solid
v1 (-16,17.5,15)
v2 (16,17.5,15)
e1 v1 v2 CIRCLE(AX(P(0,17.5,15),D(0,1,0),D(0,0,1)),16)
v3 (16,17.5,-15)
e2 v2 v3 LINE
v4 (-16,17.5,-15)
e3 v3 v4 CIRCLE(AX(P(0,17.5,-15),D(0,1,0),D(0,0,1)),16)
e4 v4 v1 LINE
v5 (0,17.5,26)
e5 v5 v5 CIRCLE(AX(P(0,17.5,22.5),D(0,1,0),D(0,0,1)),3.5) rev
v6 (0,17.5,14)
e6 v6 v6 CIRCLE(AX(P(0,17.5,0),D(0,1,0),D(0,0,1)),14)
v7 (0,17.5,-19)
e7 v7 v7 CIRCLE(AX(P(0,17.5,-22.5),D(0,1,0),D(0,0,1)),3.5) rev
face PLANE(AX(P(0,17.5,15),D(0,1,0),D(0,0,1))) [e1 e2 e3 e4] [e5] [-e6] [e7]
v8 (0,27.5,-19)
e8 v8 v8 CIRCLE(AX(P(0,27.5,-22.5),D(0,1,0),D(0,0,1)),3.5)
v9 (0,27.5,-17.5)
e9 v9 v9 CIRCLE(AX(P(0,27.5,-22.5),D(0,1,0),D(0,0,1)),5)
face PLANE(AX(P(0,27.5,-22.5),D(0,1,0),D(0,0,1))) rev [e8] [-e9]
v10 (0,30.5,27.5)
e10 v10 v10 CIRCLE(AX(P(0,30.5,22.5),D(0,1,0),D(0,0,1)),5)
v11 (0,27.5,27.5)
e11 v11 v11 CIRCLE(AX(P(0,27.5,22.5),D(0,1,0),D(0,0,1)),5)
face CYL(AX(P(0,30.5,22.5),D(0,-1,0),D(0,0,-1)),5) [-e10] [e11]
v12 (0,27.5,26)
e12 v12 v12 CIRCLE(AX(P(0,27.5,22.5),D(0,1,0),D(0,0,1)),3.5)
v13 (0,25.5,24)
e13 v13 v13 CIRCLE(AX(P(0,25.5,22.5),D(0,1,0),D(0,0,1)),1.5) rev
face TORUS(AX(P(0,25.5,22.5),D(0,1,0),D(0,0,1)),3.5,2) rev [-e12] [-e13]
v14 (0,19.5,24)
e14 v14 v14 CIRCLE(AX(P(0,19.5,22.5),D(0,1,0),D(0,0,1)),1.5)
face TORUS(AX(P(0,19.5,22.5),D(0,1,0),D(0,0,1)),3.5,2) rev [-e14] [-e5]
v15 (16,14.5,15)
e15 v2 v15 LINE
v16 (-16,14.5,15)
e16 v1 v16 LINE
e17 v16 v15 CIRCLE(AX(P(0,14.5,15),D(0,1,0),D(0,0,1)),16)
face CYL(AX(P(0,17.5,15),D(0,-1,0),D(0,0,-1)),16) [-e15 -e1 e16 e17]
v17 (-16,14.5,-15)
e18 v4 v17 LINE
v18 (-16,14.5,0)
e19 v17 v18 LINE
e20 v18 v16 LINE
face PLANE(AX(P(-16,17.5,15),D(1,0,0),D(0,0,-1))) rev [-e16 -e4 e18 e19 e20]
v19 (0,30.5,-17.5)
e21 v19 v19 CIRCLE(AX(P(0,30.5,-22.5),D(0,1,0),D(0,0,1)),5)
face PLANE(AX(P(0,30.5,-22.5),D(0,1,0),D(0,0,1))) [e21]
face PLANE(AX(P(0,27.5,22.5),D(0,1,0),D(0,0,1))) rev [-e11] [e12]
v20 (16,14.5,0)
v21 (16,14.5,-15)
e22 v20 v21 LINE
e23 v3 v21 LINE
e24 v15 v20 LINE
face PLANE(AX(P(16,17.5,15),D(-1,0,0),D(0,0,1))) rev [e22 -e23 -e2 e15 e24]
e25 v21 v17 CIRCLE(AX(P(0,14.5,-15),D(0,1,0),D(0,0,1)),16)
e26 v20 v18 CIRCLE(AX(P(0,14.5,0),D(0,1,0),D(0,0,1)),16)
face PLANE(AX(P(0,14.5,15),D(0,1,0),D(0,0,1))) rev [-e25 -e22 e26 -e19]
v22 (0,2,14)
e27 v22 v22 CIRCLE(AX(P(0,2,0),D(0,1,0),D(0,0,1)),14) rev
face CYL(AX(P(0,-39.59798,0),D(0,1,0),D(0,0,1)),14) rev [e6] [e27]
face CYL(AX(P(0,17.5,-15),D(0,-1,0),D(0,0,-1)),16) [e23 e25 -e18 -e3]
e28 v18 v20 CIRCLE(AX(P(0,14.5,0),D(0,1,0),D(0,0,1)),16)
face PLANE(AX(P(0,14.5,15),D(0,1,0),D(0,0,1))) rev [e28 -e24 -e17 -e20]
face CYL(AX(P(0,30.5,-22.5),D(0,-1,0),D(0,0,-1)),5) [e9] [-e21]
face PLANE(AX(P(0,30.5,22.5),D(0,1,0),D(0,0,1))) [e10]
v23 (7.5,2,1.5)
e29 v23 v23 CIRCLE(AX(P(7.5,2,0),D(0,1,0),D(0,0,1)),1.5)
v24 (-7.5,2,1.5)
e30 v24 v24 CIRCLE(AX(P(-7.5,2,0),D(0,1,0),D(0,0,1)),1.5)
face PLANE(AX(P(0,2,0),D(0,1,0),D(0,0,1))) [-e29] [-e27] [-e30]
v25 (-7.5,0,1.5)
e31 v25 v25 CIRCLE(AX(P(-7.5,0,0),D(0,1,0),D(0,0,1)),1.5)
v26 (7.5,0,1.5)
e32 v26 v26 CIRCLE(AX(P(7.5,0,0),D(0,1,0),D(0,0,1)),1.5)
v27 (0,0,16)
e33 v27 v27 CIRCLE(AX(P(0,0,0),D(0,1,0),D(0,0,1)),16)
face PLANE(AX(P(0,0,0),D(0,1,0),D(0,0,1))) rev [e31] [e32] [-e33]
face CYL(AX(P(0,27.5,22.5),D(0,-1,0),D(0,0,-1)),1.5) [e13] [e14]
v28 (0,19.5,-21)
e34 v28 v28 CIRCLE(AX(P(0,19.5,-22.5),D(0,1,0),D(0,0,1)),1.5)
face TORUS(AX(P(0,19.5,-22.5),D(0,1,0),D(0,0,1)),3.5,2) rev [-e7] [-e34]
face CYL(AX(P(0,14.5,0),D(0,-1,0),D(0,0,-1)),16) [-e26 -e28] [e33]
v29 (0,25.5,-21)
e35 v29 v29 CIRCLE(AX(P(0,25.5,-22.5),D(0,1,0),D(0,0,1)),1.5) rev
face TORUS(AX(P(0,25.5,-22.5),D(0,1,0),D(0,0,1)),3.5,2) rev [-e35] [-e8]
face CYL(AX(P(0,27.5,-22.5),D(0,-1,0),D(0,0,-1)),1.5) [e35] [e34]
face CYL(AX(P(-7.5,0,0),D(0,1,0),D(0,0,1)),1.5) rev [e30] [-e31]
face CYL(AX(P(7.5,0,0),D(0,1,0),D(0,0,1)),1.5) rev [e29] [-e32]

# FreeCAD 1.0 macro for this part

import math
import FreeCAD as App
import Part
import Sketcher


def edges_at(feature, points):
    """Names of the edges that pass closest to the given points."""
    edges = feature.Shape.Edges
    near = lambda p: min(range(len(edges)), key=lambda i: edges[i].distToShape(Part.Vertex(*p))[0])
    return sorted({f"Edge{near(p) + 1}" for p in points})

doc = App.newDocument("Part")
body = doc.addObject("PartDesign::Body", "Body")

# Sketch on XZ plane
sketch1 = body.newObject("Sketcher::SketchObject", "Sketch")
sketch1.AttachmentSupport = (doc.getObject("XZ_Plane"), [""])
sketch1.MapMode = "FlatFace"
sketch1.addGeometry(Part.Circle(App.Vector(0, 0, 0), App.Vector(0, 0, 1), 16), False)
sketch1.addConstraint(Sketcher.Constraint("Coincident", 0, 3, -1, 1))
sketch1.addConstraint(Sketcher.Constraint("Diameter", 0, 32.0))
pad1 = body.newObject("PartDesign::Pad", "Pad")
pad1.Profile = sketch1
pad1.Length = 14.5
pad1.Reversed = True

# Sketch on XZ plane
sketch2 = body.newObject("Sketcher::SketchObject", "Sketch001")
sketch2.AttachmentSupport = (doc.getObject("XZ_Plane"), [""])
sketch2.MapMode = "FlatFace"
sketch2.AttachmentOffset = App.Placement(App.Vector(0, 0, -14.5), App.Rotation())
sketch2.addGeometry(Part.LineSegment(App.Vector(-16, -15, 0), App.Vector(-16, 15, 0)), False)
sketch2.addGeometry(Part.ArcOfCircle(Part.Circle(App.Vector(0, 15, 0), App.Vector(0, 0, 1), 16), math.radians(0), math.radians(180)), False)
sketch2.addGeometry(Part.LineSegment(App.Vector(16, 15, 0), App.Vector(16, -15, 0)), False)
sketch2.addGeometry(Part.ArcOfCircle(Part.Circle(App.Vector(0, -15, 0), App.Vector(0, 0, 1), 16), math.radians(180), math.radians(360)), False)
sketch2.addConstraint(Sketcher.Constraint("Tangent", 0, 2, 1, 2))
sketch2.addConstraint(Sketcher.Constraint("Tangent", 1, 1, 2, 1))
sketch2.addConstraint(Sketcher.Constraint("Tangent", 2, 2, 3, 2))
sketch2.addConstraint(Sketcher.Constraint("Tangent", 3, 1, 0, 1))
sketch2.addConstraint(Sketcher.Constraint("Vertical", 0))
sketch2.addConstraint(Sketcher.Constraint("Vertical", 2))
sketch2.addConstraint(Sketcher.Constraint("Symmetric", 1, 3, 3, 3, -1, 1))
sketch2.addConstraint(Sketcher.Constraint("Radius", 1, 16.0))
sketch2.addConstraint(Sketcher.Constraint("DistanceY", 0, 1, 0, 2, 30.0))
pad2 = body.newObject("PartDesign::Pad", "Pad001")
pad2.Profile = sketch2
pad2.Length = 3
pad2.Reversed = True

# Sketch on XZ plane
sketch3 = body.newObject("Sketcher::SketchObject", "Sketch002")
sketch3.AttachmentSupport = (doc.getObject("XZ_Plane"), [""])
sketch3.MapMode = "FlatFace"
sketch3.AttachmentOffset = App.Placement(App.Vector(0, 0, -17.5), App.Rotation())
sketch3.addGeometry(Part.Circle(App.Vector(0, -22.5, 0), App.Vector(0, 0, 1), 1.5), False)
sketch3.addGeometry(Part.Circle(App.Vector(0, 22.5, 0), App.Vector(0, 0, 1), 1.5), False)
sketch3.addConstraint(Sketcher.Constraint("Equal", 0, 1))
sketch3.addConstraint(Sketcher.Constraint("Symmetric", 0, 3, 1, 3, -1, 1))
sketch3.addConstraint(Sketcher.Constraint("PointOnObject", 0, 3, -2))
sketch3.addConstraint(Sketcher.Constraint("Diameter", 0, 3.0))
sketch3.addConstraint(Sketcher.Constraint("DistanceY", 0, 3, 1, 3, 45.0))
pad3 = body.newObject("PartDesign::Pad", "Pad002")
pad3.Profile = sketch3
pad3.Length = 10
pad3.Reversed = True

# Sketch on XZ plane
sketch4 = body.newObject("Sketcher::SketchObject", "Sketch003")
sketch4.AttachmentSupport = (doc.getObject("XZ_Plane"), [""])
sketch4.MapMode = "FlatFace"
sketch4.AttachmentOffset = App.Placement(App.Vector(0, 0, -17.5), App.Rotation())
sketch4.addGeometry(Part.Circle(App.Vector(0, 0, 0), App.Vector(0, 0, 1), 14), False)
sketch4.addConstraint(Sketcher.Constraint("Coincident", 0, 3, -1, 1))
sketch4.addConstraint(Sketcher.Constraint("Diameter", 0, 28.0))
pocket1 = body.newObject("PartDesign::Pocket", "Pocket")
pocket1.Profile = sketch4
pocket1.Length = 15.5
pocket1.Reversed = True

# Sketch on XZ plane
sketch5 = body.newObject("Sketcher::SketchObject", "Sketch004")
sketch5.AttachmentSupport = (doc.getObject("XZ_Plane"), [""])
sketch5.MapMode = "FlatFace"
sketch5.AttachmentOffset = App.Placement(App.Vector(0, 0, -2), App.Rotation())
sketch5.addGeometry(Part.Circle(App.Vector(7.5, 0, 0), App.Vector(0, 0, 1), 1.5), False)
sketch5.addGeometry(Part.Circle(App.Vector(-7.5, 0, 0), App.Vector(0, 0, 1), 1.5), False)
sketch5.addConstraint(Sketcher.Constraint("Equal", 0, 1))
sketch5.addConstraint(Sketcher.Constraint("Symmetric", 0, 3, 1, 3, -1, 1))
sketch5.addConstraint(Sketcher.Constraint("PointOnObject", 0, 3, -1))
sketch5.addConstraint(Sketcher.Constraint("Diameter", 0, 3.0))
sketch5.addConstraint(Sketcher.Constraint("DistanceX", 1, 3, 0, 3, 15.0))
pocket2 = body.newObject("PartDesign::Pocket", "Pocket001")
pocket2.Profile = sketch5
pocket2.Type = "ThroughAll"
pocket2.Reversed = True

# Sketch on XZ plane
sketch6 = body.newObject("Sketcher::SketchObject", "Sketch005")
sketch6.AttachmentSupport = (doc.getObject("XZ_Plane"), [""])
sketch6.MapMode = "FlatFace"
sketch6.AttachmentOffset = App.Placement(App.Vector(0, 0, -27.5), App.Rotation())
sketch6.addGeometry(Part.Circle(App.Vector(0, -22, 0), App.Vector(0, 0, 1), 5), False)
sketch6.addGeometry(Part.Circle(App.Vector(0, 22, 0), App.Vector(0, 0, 1), 5), False)
sketch6.addConstraint(Sketcher.Constraint("Equal", 0, 1))
sketch6.addConstraint(Sketcher.Constraint("Symmetric", 0, 3, 1, 3, -1, 1))
sketch6.addConstraint(Sketcher.Constraint("PointOnObject", 0, 3, -2))
sketch6.addConstraint(Sketcher.Constraint("Diameter", 0, 10.0))
sketch6.addConstraint(Sketcher.Constraint("DistanceY", 0, 3, 1, 3, 45.0))
pad4 = body.newObject("PartDesign::Pad", "Pad003")
pad4.Profile = sketch6
pad4.Length = 3
pad4.Reversed = True
doc.recompute()

fillet = body.newObject("PartDesign::Fillet", "Fillet")
fillet.Base = (pad4, edges_at(pad4, [
    (0, 17.5, -24),
    (0, 27.5, -24),
    (0, 17.5, 21),
    (0, 27.5, 21),
]))
fillet.Radius = 2

doc.recompute()
